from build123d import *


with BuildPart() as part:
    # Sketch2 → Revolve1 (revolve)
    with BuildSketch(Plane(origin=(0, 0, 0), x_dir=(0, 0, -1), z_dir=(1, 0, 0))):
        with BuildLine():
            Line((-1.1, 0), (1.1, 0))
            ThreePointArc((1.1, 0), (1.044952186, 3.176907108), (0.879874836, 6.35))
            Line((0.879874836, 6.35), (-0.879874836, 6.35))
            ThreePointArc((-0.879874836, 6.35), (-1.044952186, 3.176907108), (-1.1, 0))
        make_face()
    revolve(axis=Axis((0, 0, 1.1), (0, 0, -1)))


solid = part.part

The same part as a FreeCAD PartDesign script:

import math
import FreeCAD as App
import Part
import Sketcher
from FreeCAD import Vector
Q = App.Units.Quantity

doc = App.newDocument("Part")
body = doc.addObject("PartDesign::Body", "Body")

sketch1 = body.newObject("Sketcher::SketchObject", "Sketch")
sketch1.AttachmentSupport = (doc.getObject("YZ_Plane"), [""])
sketch1.MapMode = "FlatFace"
sketch1.addGeometry([
    Part.LineSegment(Vector(0, 1.1, 0), Vector(0, -1.1, 0)),
    Part.ArcOfCircle(Part.Circle(Vector(0, 90.600001, 0), Vector(0, 0, 1), 91.700001), math.radians(-90), math.radians(-86.02923)),
    Part.LineSegment(Vector(6.35, -0.879875, 0), Vector(6.35, 0.879875, 0)),
    Part.ArcOfCircle(Part.Circle(Vector(0, -90.600001, 0), Vector(0, 0, 1), 91.700001), math.radians(86.02923), math.radians(90)),
], False)
sketch1.addConstraint([
    Sketcher.Constraint("Coincident", 0, 2, 1, 1),
    Sketcher.Constraint("Coincident", 1, 2, 2, 1),
    Sketcher.Constraint("Coincident", 2, 2, 3, 1),
    Sketcher.Constraint("Coincident", 3, 2, 0, 1),
    Sketcher.Constraint("Vertical", 0),
    Sketcher.Constraint("Vertical", 2),
    Sketcher.Constraint("Equal", 1, 3),
    Sketcher.Constraint("Symmetric", 1, 3, 3, 3, -1, 1),
    Sketcher.Constraint("PointOnObject", 1, 3, -2),
    Sketcher.Constraint("PointOnObject", 0, 2, -2),
    Sketcher.Constraint("Radius", 1, Q("91.700001 mm")),
    Sketcher.Constraint("DistanceY", 0, 2, 0, 1, Q("2.2 mm")),
    Sketcher.Constraint("DistanceX", -1, 1, 1, 2, Q("6.35 mm")),
])
revolution = body.newObject("PartDesign::Revolution", "Revolution")
revolution.Profile = sketch1
revolution.ReferenceAxis = (sketch1, ["V_Axis"])
revolution.Angle = 360

doc.recompute()
